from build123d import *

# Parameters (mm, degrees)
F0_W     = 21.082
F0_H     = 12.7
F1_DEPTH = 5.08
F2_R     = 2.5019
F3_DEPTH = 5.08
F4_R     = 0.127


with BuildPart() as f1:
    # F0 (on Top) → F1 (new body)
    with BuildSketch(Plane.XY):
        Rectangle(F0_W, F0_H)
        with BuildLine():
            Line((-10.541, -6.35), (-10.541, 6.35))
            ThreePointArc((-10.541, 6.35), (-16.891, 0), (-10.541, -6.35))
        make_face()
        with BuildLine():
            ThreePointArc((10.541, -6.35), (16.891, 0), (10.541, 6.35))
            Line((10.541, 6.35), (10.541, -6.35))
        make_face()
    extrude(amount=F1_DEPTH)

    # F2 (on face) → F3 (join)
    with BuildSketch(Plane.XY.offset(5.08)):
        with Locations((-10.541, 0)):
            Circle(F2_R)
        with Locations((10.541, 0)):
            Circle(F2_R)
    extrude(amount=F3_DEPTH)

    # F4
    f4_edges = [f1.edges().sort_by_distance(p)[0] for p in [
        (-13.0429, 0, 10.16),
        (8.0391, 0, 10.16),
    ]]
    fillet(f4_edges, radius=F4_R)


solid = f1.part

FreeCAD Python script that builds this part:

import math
import FreeCAD as App
import Part
import Sketcher
Q = App.Units.Quantity


def edges_at(feature, points):
    """Names of the edges that pass closest to the given points."""
    edges = feature.Shape.Edges
    near = lambda p: min(range(len(edges)), key=lambda i: edges[i].distToShape(Part.Vertex(*p))[0])
    return sorted({f"Edge{near(p) + 1}" for p in points})

doc = App.newDocument("Part")
body = doc.addObject("PartDesign::Body", "Body")

sketch1 = body.newObject("Sketcher::SketchObject", "Sketch")
sketch1.AttachmentSupport = (doc.getObject("XY_Plane"), [""])
sketch1.MapMode = "FlatFace"
sketch1.addGeometry([
    Part.LineSegment(App.Vector(-11, -6, 0), App.Vector(11, -6, 0)),
    Part.ArcOfCircle(Part.Circle(App.Vector(11, 0, 0), App.Vector(0, 0, 1), 6), math.radians(-90), math.radians(90)),
    Part.LineSegment(App.Vector(11, 6, 0), App.Vector(-11, 6, 0)),
    Part.ArcOfCircle(Part.Circle(App.Vector(-11, 0, 0), App.Vector(0, 0, 1), 6), math.radians(90), math.radians(270)),
], False)
sketch1.addConstraint([
    Sketcher.Constraint("Tangent", 0, 2, 1, 1),
    Sketcher.Constraint("Tangent", 1, 2, 2, 1),
    Sketcher.Constraint("Tangent", 2, 2, 3, 1),
    Sketcher.Constraint("Tangent", 3, 2, 0, 1),
    Sketcher.Constraint("Horizontal", 0),
    Sketcher.Constraint("Horizontal", 2),
    Sketcher.Constraint("Symmetric", 1, 3, 3, 3, -1, 1),
    Sketcher.Constraint("Radius", 1, Q("0.25 in")),
    Sketcher.Constraint("DistanceX", 0, 1, 0, 2, Q("0.83 in")),
])
pad1 = body.newObject("PartDesign::Pad", "Pad")
pad1.Profile = sketch1
pad1.Length = Q("0.2 in")

sketch2 = body.newObject("Sketcher::SketchObject", "Sketch001")
sketch2.AttachmentSupport = (doc.getObject("XY_Plane"), [""])
sketch2.MapMode = "FlatFace"
sketch2.AttachmentOffset = App.Placement(App.Vector(0, 0, 0.2 * 25.4), App.Rotation())
sketch2.addGeometry([
    Part.Circle(App.Vector(-10.5, 0, 0), App.Vector(0, 0, 1), 2.5),
    Part.Circle(App.Vector(10.5, 0, 0), App.Vector(0, 0, 1), 2.5),
], False)
sketch2.addConstraint([
    Sketcher.Constraint("Equal", 0, 1),
    Sketcher.Constraint("Symmetric", 0, 3, 1, 3, -1, 1),
    Sketcher.Constraint("PointOnObject", 0, 3, -1),
    Sketcher.Constraint("Diameter", 0, Q("0.197 in")),
    Sketcher.Constraint("DistanceX", 0, 3, 1, 3, Q("0.83 in")),
])
pad2 = body.newObject("PartDesign::Pad", "Pad001")
pad2.Profile = sketch2
pad2.Length = Q("0.2 in")
doc.recompute()

fillet = body.newObject("PartDesign::Fillet", "Fillet")
fillet.Base = (pad2, edges_at(pad2, [(-13.043, 0, 10.16), (8.039, 0, 10.16)]))
fillet.Radius = Q("0.005 in")

doc.recompute()
